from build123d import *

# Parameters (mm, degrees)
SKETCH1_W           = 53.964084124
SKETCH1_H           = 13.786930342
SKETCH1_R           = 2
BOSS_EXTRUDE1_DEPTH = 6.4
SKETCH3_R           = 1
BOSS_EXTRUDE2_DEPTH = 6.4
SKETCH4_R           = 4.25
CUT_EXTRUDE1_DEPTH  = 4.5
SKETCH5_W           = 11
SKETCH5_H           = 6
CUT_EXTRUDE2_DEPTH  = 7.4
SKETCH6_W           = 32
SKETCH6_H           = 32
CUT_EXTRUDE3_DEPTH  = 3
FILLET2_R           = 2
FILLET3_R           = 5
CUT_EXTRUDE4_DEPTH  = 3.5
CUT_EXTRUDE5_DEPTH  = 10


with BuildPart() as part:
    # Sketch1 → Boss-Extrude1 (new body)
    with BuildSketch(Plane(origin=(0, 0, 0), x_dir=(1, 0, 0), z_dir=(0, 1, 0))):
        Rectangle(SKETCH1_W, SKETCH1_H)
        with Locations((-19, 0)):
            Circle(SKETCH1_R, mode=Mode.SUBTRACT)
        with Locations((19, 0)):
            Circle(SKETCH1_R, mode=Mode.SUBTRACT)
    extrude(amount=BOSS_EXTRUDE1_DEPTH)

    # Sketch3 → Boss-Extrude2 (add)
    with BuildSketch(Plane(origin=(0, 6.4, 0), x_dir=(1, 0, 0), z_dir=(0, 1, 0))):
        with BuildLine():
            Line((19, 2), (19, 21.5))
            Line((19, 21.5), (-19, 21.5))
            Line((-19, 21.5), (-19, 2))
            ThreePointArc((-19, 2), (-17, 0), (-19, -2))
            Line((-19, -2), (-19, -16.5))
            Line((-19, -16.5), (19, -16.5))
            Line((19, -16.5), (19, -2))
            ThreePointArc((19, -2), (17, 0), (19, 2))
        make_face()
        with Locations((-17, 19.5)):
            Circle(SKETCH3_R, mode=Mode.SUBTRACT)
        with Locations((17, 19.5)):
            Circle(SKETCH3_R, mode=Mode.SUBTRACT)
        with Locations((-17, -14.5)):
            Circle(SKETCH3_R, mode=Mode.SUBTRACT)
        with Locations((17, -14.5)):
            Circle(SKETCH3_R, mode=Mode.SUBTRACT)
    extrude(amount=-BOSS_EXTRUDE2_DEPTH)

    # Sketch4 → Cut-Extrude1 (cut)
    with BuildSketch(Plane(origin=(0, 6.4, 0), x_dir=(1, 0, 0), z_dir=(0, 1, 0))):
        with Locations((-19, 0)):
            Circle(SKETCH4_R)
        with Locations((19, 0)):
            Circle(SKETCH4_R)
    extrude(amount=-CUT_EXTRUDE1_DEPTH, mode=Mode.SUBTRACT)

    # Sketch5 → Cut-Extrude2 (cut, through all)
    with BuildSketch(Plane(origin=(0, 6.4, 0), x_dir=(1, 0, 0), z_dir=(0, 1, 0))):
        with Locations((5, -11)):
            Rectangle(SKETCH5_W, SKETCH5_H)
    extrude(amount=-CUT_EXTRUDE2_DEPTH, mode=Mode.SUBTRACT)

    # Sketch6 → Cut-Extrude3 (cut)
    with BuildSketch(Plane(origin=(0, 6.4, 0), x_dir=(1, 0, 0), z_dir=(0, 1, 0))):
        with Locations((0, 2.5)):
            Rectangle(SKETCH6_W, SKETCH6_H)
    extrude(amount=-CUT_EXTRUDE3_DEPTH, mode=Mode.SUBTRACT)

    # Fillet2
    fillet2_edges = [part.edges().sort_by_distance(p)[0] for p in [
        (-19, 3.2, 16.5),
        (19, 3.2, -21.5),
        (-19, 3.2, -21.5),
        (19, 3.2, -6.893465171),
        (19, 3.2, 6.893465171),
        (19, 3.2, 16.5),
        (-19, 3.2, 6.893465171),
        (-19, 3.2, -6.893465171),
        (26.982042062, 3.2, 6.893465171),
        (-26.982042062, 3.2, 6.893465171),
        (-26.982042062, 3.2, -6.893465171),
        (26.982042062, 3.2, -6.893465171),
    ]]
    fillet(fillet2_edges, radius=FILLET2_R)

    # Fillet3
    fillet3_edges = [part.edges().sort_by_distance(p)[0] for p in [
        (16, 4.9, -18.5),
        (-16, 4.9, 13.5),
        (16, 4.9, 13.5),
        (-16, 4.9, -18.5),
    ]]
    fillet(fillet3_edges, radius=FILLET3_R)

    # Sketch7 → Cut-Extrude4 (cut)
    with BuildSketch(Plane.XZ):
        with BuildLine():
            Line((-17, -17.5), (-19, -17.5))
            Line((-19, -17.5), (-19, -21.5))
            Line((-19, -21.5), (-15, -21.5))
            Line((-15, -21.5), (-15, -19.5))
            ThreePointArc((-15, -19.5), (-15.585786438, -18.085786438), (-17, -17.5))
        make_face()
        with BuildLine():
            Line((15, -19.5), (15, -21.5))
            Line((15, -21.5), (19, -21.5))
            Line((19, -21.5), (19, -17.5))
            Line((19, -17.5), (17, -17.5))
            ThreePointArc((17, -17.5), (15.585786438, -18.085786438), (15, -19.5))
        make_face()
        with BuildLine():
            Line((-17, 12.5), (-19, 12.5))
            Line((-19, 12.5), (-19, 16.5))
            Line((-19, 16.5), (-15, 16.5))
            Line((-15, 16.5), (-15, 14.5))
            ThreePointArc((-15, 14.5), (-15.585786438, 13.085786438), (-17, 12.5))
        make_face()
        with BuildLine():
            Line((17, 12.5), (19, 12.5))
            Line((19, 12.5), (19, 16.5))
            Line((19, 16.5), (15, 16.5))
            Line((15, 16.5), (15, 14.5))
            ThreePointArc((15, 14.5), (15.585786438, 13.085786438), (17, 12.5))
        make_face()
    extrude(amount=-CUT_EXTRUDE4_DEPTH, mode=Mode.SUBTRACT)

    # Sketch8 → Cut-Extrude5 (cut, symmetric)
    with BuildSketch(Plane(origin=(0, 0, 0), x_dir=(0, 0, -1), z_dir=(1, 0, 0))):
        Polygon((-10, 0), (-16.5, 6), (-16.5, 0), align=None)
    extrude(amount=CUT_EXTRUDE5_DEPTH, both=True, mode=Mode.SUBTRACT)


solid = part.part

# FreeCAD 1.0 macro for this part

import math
import FreeCAD as App
import Part
import Sketcher
from FreeCAD import Vector


def edges_at(feature, points):
    """Names of the edges that pass closest to the given points."""
    edges = feature.Shape.Edges
    near = lambda p: min(range(len(edges)), key=lambda i: edges[i].distToShape(Part.Vertex(*p))[0])
    return sorted({f"Edge{near(p) + 1}" for p in points})

doc = App.newDocument("Part")
body = doc.addObject("PartDesign::Body", "Body")

# Sketch on XZ plane
sketch1 = body.newObject("Sketcher::SketchObject", "Sketch")
sketch1.AttachmentSupport = (doc.getObject("XZ_Plane"), [""])
sketch1.MapMode = "FlatFace"
sketch1.addGeometry(Part.LineSegment(Vector(-27, -6.9, 0), Vector(-27, 6.9, 0)), False)
sketch1.addGeometry(Part.LineSegment(Vector(-27, 6.9, 0), Vector(27, 6.9, 0)), False)
sketch1.addGeometry(Part.LineSegment(Vector(27, 6.9, 0), Vector(27, -6.9, 0)), False)
sketch1.addGeometry(Part.LineSegment(Vector(27, -6.9, 0), Vector(-27, -6.9, 0)), False)
sketch1.addGeometry(Part.Circle(Vector(-19, 0, 0), Vector(0, 0, 1), 2), False)
sketch1.addGeometry(Part.Circle(Vector(19, 0, 0), Vector(0, 0, 1), 2), False)
sketch1.addConstraint(Sketcher.Constraint("Coincident", 0, 2, 1, 1))
sketch1.addConstraint(Sketcher.Constraint("Coincident", 1, 2, 2, 1))
sketch1.addConstraint(Sketcher.Constraint("Coincident", 2, 2, 3, 1))
sketch1.addConstraint(Sketcher.Constraint("Coincident", 3, 2, 0, 1))
sketch1.addConstraint(Sketcher.Constraint("Vertical", 0))
sketch1.addConstraint(Sketcher.Constraint("Horizontal", 1))
sketch1.addConstraint(Sketcher.Constraint("Vertical", 2))
sketch1.addConstraint(Sketcher.Constraint("Horizontal", 3))
sketch1.addConstraint(Sketcher.Constraint("Equal", 4, 5))
sketch1.addConstraint(Sketcher.Constraint("Symmetric", 4, 3, 5, 3, -1, 1))
sketch1.addConstraint(Sketcher.Constraint("Symmetric", 0, 2, 2, 2, -1, 1))
sketch1.addConstraint(Sketcher.Constraint("PointOnObject", 4, 3, -1))
sketch1.addConstraint(Sketcher.Constraint("Diameter", 4, 4.0))
sketch1.addConstraint(Sketcher.Constraint("DistanceX", 4, 3, -1, 1, 19.0))
sketch1.addConstraint(Sketcher.Constraint("DistanceY", 0, 1, 0, 2, 13.78693))
sketch1.addConstraint(Sketcher.Constraint("DistanceX", 1, 1, 1, 2, 53.964084))
pad1 = body.newObject("PartDesign::Pad", "Pad")
pad1.Profile = sketch1
pad1.Length = 6.4
pad1.Reversed = True

# Sketch on XZ plane
sketch2 = body.newObject("Sketcher::SketchObject", "Sketch001")
sketch2.AttachmentSupport = (doc.getObject("XZ_Plane"), [""])
sketch2.MapMode = "FlatFace"
sketch2.AttachmentOffset = App.Placement(Vector(0, 0, -6.4), App.Rotation())
sketch2.addGeometry(Part.LineSegment(Vector(19, -2, 0), Vector(19, -21.5, 0)), False)
sketch2.addGeometry(Part.LineSegment(Vector(19, -21.5, 0), Vector(-19, -21.5, 0)), False)
sketch2.addGeometry(Part.LineSegment(Vector(-19, -21.5, 0), Vector(-19, -2, 0)), False)
sketch2.addGeometry(Part.ArcOfCircle(Part.Circle(Vector(-19, 0, 0), Vector(0, 0, 1), 2), math.radians(-90), math.radians(90)), False)
sketch2.addGeometry(Part.LineSegment(Vector(-19, 2, 0), Vector(-19, 16.5, 0)), False)
sketch2.addGeometry(Part.LineSegment(Vector(-19, 16.5, 0), Vector(19, 16.5, 0)), False)
sketch2.addGeometry(Part.LineSegment(Vector(19, 16.5, 0), Vector(19, 2, 0)), False)
sketch2.addGeometry(Part.ArcOfCircle(Part.Circle(Vector(19, 0, 0), Vector(0, 0, 1), 2), math.radians(90), math.radians(270)), False)
sketch2.addGeometry(Part.Circle(Vector(-17, 14.5, 0), Vector(0, 0, 1), 1), False)
sketch2.addGeometry(Part.Circle(Vector(17, 14.5, 0), Vector(0, 0, 1), 1), False)
sketch2.addGeometry(Part.Circle(Vector(-17, -19.5, 0), Vector(0, 0, 1), 1), False)
sketch2.addGeometry(Part.Circle(Vector(17, -19.5, 0), Vector(0, 0, 1), 1), False)
sketch2.addConstraint(Sketcher.Constraint("Coincident", 0, 2, 1, 1))
sketch2.addConstraint(Sketcher.Constraint("Coincident", 1, 2, 2, 1))
sketch2.addConstraint(Sketcher.Constraint("Coincident", 2, 2, 3, 1))
sketch2.addConstraint(Sketcher.Constraint("Coincident", 3, 2, 4, 1))
sketch2.addConstraint(Sketcher.Constraint("Coincident", 4, 2, 5, 1))
sketch2.addConstraint(Sketcher.Constraint("Coincident", 5, 2, 6, 1))
sketch2.addConstraint(Sketcher.Constraint("Coincident", 6, 2, 7, 1))
sketch2.addConstraint(Sketcher.Constraint("Coincident", 7, 2, 0, 1))
sketch2.addConstraint(Sketcher.Constraint("Vertical", 0))
sketch2.addConstraint(Sketcher.Constraint("Horizontal", 1))
sketch2.addConstraint(Sketcher.Constraint("Vertical", 2))
sketch2.addConstraint(Sketcher.Constraint("Vertical", 4))
sketch2.addConstraint(Sketcher.Constraint("Horizontal", 5))
sketch2.addConstraint(Sketcher.Constraint("Vertical", 6))
sketch2.addConstraint(Sketcher.Constraint("Equal", 3, 7))
sketch2.addConstraint(Sketcher.Constraint("Equal", 8, 9))
sketch2.addConstraint(Sketcher.Constraint("Equal", 9, 10))
sketch2.addConstraint(Sketcher.Constraint("Equal", 10, 11))
sketch2.addConstraint(Sketcher.Constraint("Symmetric", 3, 3, 7, 3, -1, 1))
sketch2.addConstraint(Sketcher.Constraint("Symmetric", 8, 3, 9, 3, -2))
sketch2.addConstraint(Sketcher.Constraint("Symmetric", 10, 3, 11, 3, -2))
sketch2.addConstraint(Sketcher.Constraint("Symmetric", 3, 2, 6, 2, -2))
sketch2.addConstraint(Sketcher.Constraint("Vertical", 8, 3, 10, 3))
sketch2.addConstraint(Sketcher.Constraint("Vertical", 7, 3, 0, 2))
sketch2.addConstraint(Sketcher.Constraint("Vertical", 3, 3, 1, 2))
sketch2.addConstraint(Sketcher.Constraint("Vertical", 2, 2, 3, 2))
sketch2.addConstraint(Sketcher.Constraint("Diameter", 8, 2.0))
sketch2.addConstraint(Sketcher.Constraint("Radius", 3, 2.0))
sketch2.addConstraint(Sketcher.Constraint("DistanceX", 1, 2, 1, 1, 38.0))
sketch2.addConstraint(Sketcher.Constraint("DistanceY", 0, 2, 0, 1, 19.5))
sketch2.addConstraint(Sketcher.Constraint("DistanceY", 4, 1, 4, 2, 14.5))
sketch2.addConstraint(Sketcher.Constraint("DistanceX", 8, 3, -1, 1, 17.0))
sketch2.addConstraint(Sketcher.Constraint("DistanceY", 10, 3, 8, 3, 34.0))
sketch2.addConstraint(Sketcher.Constraint("DistanceY", 0, 2, 11, 3, 2.0))
pad2 = body.newObject("PartDesign::Pad", "Pad001")
pad2.Profile = sketch2
pad2.Length = 6.4

# Sketch on XZ plane
sketch3 = body.newObject("Sketcher::SketchObject", "Sketch002")
sketch3.AttachmentSupport = (doc.getObject("XZ_Plane"), [""])
sketch3.MapMode = "FlatFace"
sketch3.AttachmentOffset = App.Placement(Vector(0, 0, -6.4), App.Rotation())
sketch3.addGeometry(Part.Circle(Vector(-19, 0, 0), Vector(0, 0, 1), 4.2), False)
sketch3.addGeometry(Part.Circle(Vector(19, 0, 0), Vector(0, 0, 1), 4.2), False)
sketch3.addConstraint(Sketcher.Constraint("Equal", 0, 1))
sketch3.addConstraint(Sketcher.Constraint("Symmetric", 0, 3, 1, 3, -1, 1))
sketch3.addConstraint(Sketcher.Constraint("PointOnObject", 0, 3, -1))
sketch3.addConstraint(Sketcher.Constraint("Diameter", 0, 8.5))
sketch3.addConstraint(Sketcher.Constraint("DistanceX", 0, 3, -1, 1, 19.0))
pocket1 = body.newObject("PartDesign::Pocket", "Pocket")
pocket1.Profile = sketch3
pocket1.Length = 4.5
pocket1.Reversed = True

# Sketch on XZ plane
sketch4 = body.newObject("Sketcher::SketchObject", "Sketch003")
sketch4.AttachmentSupport = (doc.getObject("XZ_Plane"), [""])
sketch4.MapMode = "FlatFace"
sketch4.AttachmentOffset = App.Placement(Vector(0, 0, -6.4), App.Rotation())
sketch4.addGeometry(Part.LineSegment(Vector(0, 8, 0), Vector(0, 14, 0)), False)
sketch4.addGeometry(Part.LineSegment(Vector(0, 14, 0), Vector(10, 14, 0)), False)
sketch4.addGeometry(Part.LineSegment(Vector(10, 14, 0), Vector(10, 8, 0)), False)
sketch4.addGeometry(Part.LineSegment(Vector(10, 8, 0), Vector(0, 8, 0)), False)
sketch4.addConstraint(Sketcher.Constraint("Coincident", 0, 2, 1, 1))
sketch4.addConstraint(Sketcher.Constraint("Coincident", 1, 2, 2, 1))
sketch4.addConstraint(Sketcher.Constraint("Coincident", 2, 2, 3, 1))
sketch4.addConstraint(Sketcher.Constraint("Coincident", 3, 2, 0, 1))
sketch4.addConstraint(Sketcher.Constraint("Vertical", 0))
sketch4.addConstraint(Sketcher.Constraint("Horizontal", 1))
sketch4.addConstraint(Sketcher.Constraint("Vertical", 2))
sketch4.addConstraint(Sketcher.Constraint("Horizontal", 3))
sketch4.addConstraint(Sketcher.Constraint("DistanceX", 1, 1, 1, 2, 11.0))
sketch4.addConstraint(Sketcher.Constraint("DistanceY", 0, 1, 0, 2, 6.0))
sketch4.addConstraint(Sketcher.Constraint("DistanceY", -1, 1, 0, 2, 14.0))
sketch4.addConstraint(Sketcher.Constraint("DistanceX", 0, 2, -1, 1, 0.5))
pocket2 = body.newObject("PartDesign::Pocket", "Pocket001")
pocket2.Profile = sketch4
pocket2.Type = "ThroughAll"
pocket2.Reversed = True

# Sketch on XZ plane
sketch5 = body.newObject("Sketcher::SketchObject", "Sketch004")
sketch5.AttachmentSupport = (doc.getObject("XZ_Plane"), [""])
sketch5.MapMode = "FlatFace"
sketch5.AttachmentOffset = App.Placement(Vector(0, 0, -6.4), App.Rotation())
sketch5.addGeometry(Part.LineSegment(Vector(-16, -18, 0), Vector(-16, 14, 0)), False)
sketch5.addGeometry(Part.LineSegment(Vector(-16, 14, 0), Vector(16, 14, 0)), False)
sketch5.addGeometry(Part.LineSegment(Vector(16, 14, 0), Vector(16, -18, 0)), False)
sketch5.addGeometry(Part.LineSegment(Vector(16, -18, 0), Vector(-16, -18, 0)), False)
sketch5.addConstraint(Sketcher.Constraint("Coincident", 0, 2, 1, 1))
sketch5.addConstraint(Sketcher.Constraint("Coincident", 1, 2, 2, 1))
sketch5.addConstraint(Sketcher.Constraint("Coincident", 2, 2, 3, 1))
sketch5.addConstraint(Sketcher.Constraint("Coincident", 3, 2, 0, 1))
sketch5.addConstraint(Sketcher.Constraint("Vertical", 0))
sketch5.addConstraint(Sketcher.Constraint("Horizontal", 1))
sketch5.addConstraint(Sketcher.Constraint("Vertical", 2))
sketch5.addConstraint(Sketcher.Constraint("Horizontal", 3))
sketch5.addConstraint(Sketcher.Constraint("Equal", 3, 0))
sketch5.addConstraint(Sketcher.Constraint("DistanceX", 1, 1, 1, 2, 32.0))
sketch5.addConstraint(Sketcher.Constraint("DistanceX", 0, 2, -1, 1, 16.0))
sketch5.addConstraint(Sketcher.Constraint("DistanceY", -1, 1, 0, 2, 13.5))
pocket3 = body.newObject("PartDesign::Pocket", "Pocket002")
pocket3.Profile = sketch5
pocket3.Length = 3
pocket3.Reversed = True
doc.recompute()

fillet = body.newObject("PartDesign::Fillet", "Fillet")
fillet.Base = (pocket3, edges_at(pocket3, [
    (-19, 3.2, 16.5),
    (19, 3.2, -21.5),
    (-19, 3.2, -21.5),
    (19, 3.2, -6.893),
    (19, 3.2, 6.893),
    (19, 3.2, 16.5),
    (-19, 3.2, 6.893),
    (-19, 3.2, -6.893),
    (26.982, 3.2, 6.893),
    (-26.982, 3.2, 6.893),
    (-26.982, 3.2, -6.893),
    (26.982, 3.2, -6.893),
]))
fillet.Radius = 2
doc.recompute()

fillet2 = body.newObject("PartDesign::Fillet", "Fillet001")
fillet2.Base = (fillet, edges_at(fillet, [
    (16, 4.9, -18.5),
    (-16, 4.9, 13.5),
    (16, 4.9, 13.5),
    (-16, 4.9, -18.5),
]))
fillet2.Radius = 5

# Sketch on XZ plane
sketch6 = body.newObject("Sketcher::SketchObject", "Sketch005")
sketch6.AttachmentSupport = (doc.getObject("XZ_Plane"), [""])
sketch6.MapMode = "FlatFace"
sketch6.addGeometry(Part.LineSegment(Vector(-17, -17.5, 0), Vector(-19, -17.5, 0)), False)
sketch6.addGeometry(Part.LineSegment(Vector(-19, -17.5, 0), Vector(-19, -21.5, 0)), False)
sketch6.addGeometry(Part.LineSegment(Vector(-19, -21.5, 0), Vector(-15, -21.5, 0)), False)
sketch6.addGeometry(Part.LineSegment(Vector(-15, -21.5, 0), Vector(-15, -19.5, 0)), False)
sketch6.addGeometry(Part.ArcOfCircle(Part.Circle(Vector(-17, -19.5, 0), Vector(0, 0, 1), 2), math.radians(0), math.radians(90)), False)
sketch6.addGeometry(Part.LineSegment(Vector(15, -19.5, 0), Vector(15, -21.5, 0)), False)
sketch6.addGeometry(Part.LineSegment(Vector(15, -21.5, 0), Vector(19, -21.5, 0)), False)
sketch6.addGeometry(Part.LineSegment(Vector(19, -21.5, 0), Vector(19, -17.5, 0)), False)
sketch6.addGeometry(Part.LineSegment(Vector(19, -17.5, 0), Vector(17, -17.5, 0)), False)
sketch6.addGeometry(Part.ArcOfCircle(Part.Circle(Vector(17, -19.5, 0), Vector(0, 0, 1), 2), math.radians(90), math.radians(180)), False)
sketch6.addGeometry(Part.LineSegment(Vector(-19, 12.5, 0), Vector(-17, 12.5, 0)), False)
sketch6.addGeometry(Part.ArcOfCircle(Part.Circle(Vector(-17, 14.5, 0), Vector(0, 0, 1), 2), math.radians(-90), math.radians(0)), False)
sketch6.addGeometry(Part.LineSegment(Vector(-15, 14.5, 0), Vector(-15, 16.5, 0)), False)
sketch6.addGeometry(Part.LineSegment(Vector(-15, 16.5, 0), Vector(-19, 16.5, 0)), False)
sketch6.addGeometry(Part.LineSegment(Vector(-19, 16.5, 0), Vector(-19, 12.5, 0)), False)
sketch6.addGeometry(Part.LineSegment(Vector(17, 12.5, 0), Vector(19, 12.5, 0)), False)
sketch6.addGeometry(Part.LineSegment(Vector(19, 12.5, 0), Vector(19, 16.5, 0)), False)
sketch6.addGeometry(Part.LineSegment(Vector(19, 16.5, 0), Vector(15, 16.5, 0)), False)
sketch6.addGeometry(Part.LineSegment(Vector(15, 16.5, 0), Vector(15, 14.5, 0)), False)
sketch6.addGeometry(Part.ArcOfCircle(Part.Circle(Vector(17, 14.5, 0), Vector(0, 0, 1), 2), math.radians(-180), math.radians(-90)), False)
sketch6.addConstraint(Sketcher.Constraint("Coincident", 0, 2, 1, 1))
sketch6.addConstraint(Sketcher.Constraint("Coincident", 1, 2, 2, 1))
sketch6.addConstraint(Sketcher.Constraint("Coincident", 2, 2, 3, 1))
sketch6.addConstraint(Sketcher.Constraint("Tangent", 3, 2, 4, 1))
sketch6.addConstraint(Sketcher.Constraint("Tangent", 4, 2, 0, 1))
sketch6.addConstraint(Sketcher.Constraint("Coincident", 5, 2, 6, 1))
sketch6.addConstraint(Sketcher.Constraint("Coincident", 6, 2, 7, 1))
sketch6.addConstraint(Sketcher.Constraint("Coincident", 7, 2, 8, 1))
sketch6.addConstraint(Sketcher.Constraint("Tangent", 8, 2, 9, 1))
sketch6.addConstraint(Sketcher.Constraint("Tangent", 9, 2, 5, 1))
sketch6.addConstraint(Sketcher.Constraint("Tangent", 10, 2, 11, 1))
sketch6.addConstraint(Sketcher.Constraint("Tangent", 11, 2, 12, 1))
sketch6.addConstraint(Sketcher.Constraint("Coincident", 12, 2, 13, 1))
sketch6.addConstraint(Sketcher.Constraint("Coincident", 13, 2, 14, 1))
sketch6.addConstraint(Sketcher.Constraint("Coincident", 14, 2, 10, 1))
sketch6.addConstraint(Sketcher.Constraint("Coincident", 15, 2, 16, 1))
sketch6.addConstraint(Sketcher.Constraint("Coincident", 16, 2, 17, 1))
sketch6.addConstraint(Sketcher.Constraint("Coincident", 17, 2, 18, 1))
sketch6.addConstraint(Sketcher.Constraint("Tangent", 18, 2, 19, 1))
sketch6.addConstraint(Sketcher.Constraint("Tangent", 19, 2, 15, 1))
sketch6.addConstraint(Sketcher.Constraint("Horizontal", 0))
sketch6.addConstraint(Sketcher.Constraint("Vertical", 1))
sketch6.addConstraint(Sketcher.Constraint("Horizontal", 2))
sketch6.addConstraint(Sketcher.Constraint("Vertical", 3))
sketch6.addConstraint(Sketcher.Constraint("Vertical", 5))
sketch6.addConstraint(Sketcher.Constraint("Horizontal", 6))
sketch6.addConstraint(Sketcher.Constraint("Vertical", 7))
sketch6.addConstraint(Sketcher.Constraint("Horizontal", 8))
sketch6.addConstraint(Sketcher.Constraint("Horizontal", 10))
sketch6.addConstraint(Sketcher.Constraint("Vertical", 12))
sketch6.addConstraint(Sketcher.Constraint("Horizontal", 13))
sketch6.addConstraint(Sketcher.Constraint("Vertical", 14))
sketch6.addConstraint(Sketcher.Constraint("Horizontal", 15))
sketch6.addConstraint(Sketcher.Constraint("Vertical", 16))
sketch6.addConstraint(Sketcher.Constraint("Horizontal", 17))
sketch6.addConstraint(Sketcher.Constraint("Vertical", 18))
sketch6.addConstraint(Sketcher.Constraint("Equal", 4, 9))
sketch6.addConstraint(Sketcher.Constraint("Equal", 9, 11))
sketch6.addConstraint(Sketcher.Constraint("Equal", 11, 19))
sketch6.addConstraint(Sketcher.Constraint("Symmetric", 4, 3, 9, 3, -2))
sketch6.addConstraint(Sketcher.Constraint("Symmetric", 11, 3, 19, 3, -2))
sketch6.addConstraint(Sketcher.Constraint("Symmetric", 1, 2, 6, 2, -2))
sketch6.addConstraint(Sketcher.Constraint("Symmetric", 13, 2, 16, 2, -2))
sketch6.addConstraint(Sketcher.Constraint("Vertical", 4, 3, 11, 3))
sketch6.addConstraint(Sketcher.Constraint("Vertical", 1, 2, 13, 2))
sketch6.addConstraint(Sketcher.Constraint("Equal", 17, 1))
sketch6.addConstraint(Sketcher.Constraint("Equal", 5, 12))
sketch6.addConstraint(Sketcher.Constraint("Radius", 4, 2.0))
sketch6.addConstraint(Sketcher.Constraint("DistanceX", 0, 2, 0, 1, 2.0))
sketch6.addConstraint(Sketcher.Constraint("DistanceX", 4, 3, -1, 1, 17.0))
sketch6.addConstraint(Sketcher.Constraint("DistanceY", 4, 3, 11, 3, 34.0))
sketch6.addConstraint(Sketcher.Constraint("DistanceY", 4, 3, -1, 1, 19.5))
pocket4 = body.newObject("PartDesign::Pocket", "Pocket003")
pocket4.Profile = sketch6
pocket4.Length = 3.5

# Sketch on YZ plane
sketch7 = body.newObject("Sketcher::SketchObject", "Sketch006")
sketch7.AttachmentSupport = (doc.getObject("YZ_Plane"), [""])
sketch7.MapMode = "FlatFace"
sketch7.addGeometry(Part.LineSegment(Vector(0, 10, 0), Vector(6, 16, 0)), False)
sketch7.addGeometry(Part.LineSegment(Vector(6, 16, 0), Vector(0, 16, 0)), False)
sketch7.addGeometry(Part.LineSegment(Vector(0, 16, 0), Vector(0, 10, 0)), False)
sketch7.addConstraint(Sketcher.Constraint("Coincident", 0, 2, 1, 1))
sketch7.addConstraint(Sketcher.Constraint("Coincident", 1, 2, 2, 1))
sketch7.addConstraint(Sketcher.Constraint("Coincident", 2, 2, 0, 1))
sketch7.addConstraint(Sketcher.Constraint("Horizontal", 1))
sketch7.addConstraint(Sketcher.Constraint("Vertical", 2))
sketch7.addConstraint(Sketcher.Constraint("PointOnObject", 1, 2, -2))
sketch7.addConstraint(Sketcher.Constraint("DistanceX", 1, 2, 1, 1, 6.0))
sketch7.addConstraint(Sketcher.Constraint("DistanceY", 2, 2, 2, 1, 6.5))
sketch7.addConstraint(Sketcher.Constraint("DistanceY", -1, 1, 2, 2, 10.0))
pocket5 = body.newObject("PartDesign::Pocket", "Pocket004")
pocket5.Profile = sketch7
pocket5.Length = 20
pocket5.Midplane = True

doc.recompute()
